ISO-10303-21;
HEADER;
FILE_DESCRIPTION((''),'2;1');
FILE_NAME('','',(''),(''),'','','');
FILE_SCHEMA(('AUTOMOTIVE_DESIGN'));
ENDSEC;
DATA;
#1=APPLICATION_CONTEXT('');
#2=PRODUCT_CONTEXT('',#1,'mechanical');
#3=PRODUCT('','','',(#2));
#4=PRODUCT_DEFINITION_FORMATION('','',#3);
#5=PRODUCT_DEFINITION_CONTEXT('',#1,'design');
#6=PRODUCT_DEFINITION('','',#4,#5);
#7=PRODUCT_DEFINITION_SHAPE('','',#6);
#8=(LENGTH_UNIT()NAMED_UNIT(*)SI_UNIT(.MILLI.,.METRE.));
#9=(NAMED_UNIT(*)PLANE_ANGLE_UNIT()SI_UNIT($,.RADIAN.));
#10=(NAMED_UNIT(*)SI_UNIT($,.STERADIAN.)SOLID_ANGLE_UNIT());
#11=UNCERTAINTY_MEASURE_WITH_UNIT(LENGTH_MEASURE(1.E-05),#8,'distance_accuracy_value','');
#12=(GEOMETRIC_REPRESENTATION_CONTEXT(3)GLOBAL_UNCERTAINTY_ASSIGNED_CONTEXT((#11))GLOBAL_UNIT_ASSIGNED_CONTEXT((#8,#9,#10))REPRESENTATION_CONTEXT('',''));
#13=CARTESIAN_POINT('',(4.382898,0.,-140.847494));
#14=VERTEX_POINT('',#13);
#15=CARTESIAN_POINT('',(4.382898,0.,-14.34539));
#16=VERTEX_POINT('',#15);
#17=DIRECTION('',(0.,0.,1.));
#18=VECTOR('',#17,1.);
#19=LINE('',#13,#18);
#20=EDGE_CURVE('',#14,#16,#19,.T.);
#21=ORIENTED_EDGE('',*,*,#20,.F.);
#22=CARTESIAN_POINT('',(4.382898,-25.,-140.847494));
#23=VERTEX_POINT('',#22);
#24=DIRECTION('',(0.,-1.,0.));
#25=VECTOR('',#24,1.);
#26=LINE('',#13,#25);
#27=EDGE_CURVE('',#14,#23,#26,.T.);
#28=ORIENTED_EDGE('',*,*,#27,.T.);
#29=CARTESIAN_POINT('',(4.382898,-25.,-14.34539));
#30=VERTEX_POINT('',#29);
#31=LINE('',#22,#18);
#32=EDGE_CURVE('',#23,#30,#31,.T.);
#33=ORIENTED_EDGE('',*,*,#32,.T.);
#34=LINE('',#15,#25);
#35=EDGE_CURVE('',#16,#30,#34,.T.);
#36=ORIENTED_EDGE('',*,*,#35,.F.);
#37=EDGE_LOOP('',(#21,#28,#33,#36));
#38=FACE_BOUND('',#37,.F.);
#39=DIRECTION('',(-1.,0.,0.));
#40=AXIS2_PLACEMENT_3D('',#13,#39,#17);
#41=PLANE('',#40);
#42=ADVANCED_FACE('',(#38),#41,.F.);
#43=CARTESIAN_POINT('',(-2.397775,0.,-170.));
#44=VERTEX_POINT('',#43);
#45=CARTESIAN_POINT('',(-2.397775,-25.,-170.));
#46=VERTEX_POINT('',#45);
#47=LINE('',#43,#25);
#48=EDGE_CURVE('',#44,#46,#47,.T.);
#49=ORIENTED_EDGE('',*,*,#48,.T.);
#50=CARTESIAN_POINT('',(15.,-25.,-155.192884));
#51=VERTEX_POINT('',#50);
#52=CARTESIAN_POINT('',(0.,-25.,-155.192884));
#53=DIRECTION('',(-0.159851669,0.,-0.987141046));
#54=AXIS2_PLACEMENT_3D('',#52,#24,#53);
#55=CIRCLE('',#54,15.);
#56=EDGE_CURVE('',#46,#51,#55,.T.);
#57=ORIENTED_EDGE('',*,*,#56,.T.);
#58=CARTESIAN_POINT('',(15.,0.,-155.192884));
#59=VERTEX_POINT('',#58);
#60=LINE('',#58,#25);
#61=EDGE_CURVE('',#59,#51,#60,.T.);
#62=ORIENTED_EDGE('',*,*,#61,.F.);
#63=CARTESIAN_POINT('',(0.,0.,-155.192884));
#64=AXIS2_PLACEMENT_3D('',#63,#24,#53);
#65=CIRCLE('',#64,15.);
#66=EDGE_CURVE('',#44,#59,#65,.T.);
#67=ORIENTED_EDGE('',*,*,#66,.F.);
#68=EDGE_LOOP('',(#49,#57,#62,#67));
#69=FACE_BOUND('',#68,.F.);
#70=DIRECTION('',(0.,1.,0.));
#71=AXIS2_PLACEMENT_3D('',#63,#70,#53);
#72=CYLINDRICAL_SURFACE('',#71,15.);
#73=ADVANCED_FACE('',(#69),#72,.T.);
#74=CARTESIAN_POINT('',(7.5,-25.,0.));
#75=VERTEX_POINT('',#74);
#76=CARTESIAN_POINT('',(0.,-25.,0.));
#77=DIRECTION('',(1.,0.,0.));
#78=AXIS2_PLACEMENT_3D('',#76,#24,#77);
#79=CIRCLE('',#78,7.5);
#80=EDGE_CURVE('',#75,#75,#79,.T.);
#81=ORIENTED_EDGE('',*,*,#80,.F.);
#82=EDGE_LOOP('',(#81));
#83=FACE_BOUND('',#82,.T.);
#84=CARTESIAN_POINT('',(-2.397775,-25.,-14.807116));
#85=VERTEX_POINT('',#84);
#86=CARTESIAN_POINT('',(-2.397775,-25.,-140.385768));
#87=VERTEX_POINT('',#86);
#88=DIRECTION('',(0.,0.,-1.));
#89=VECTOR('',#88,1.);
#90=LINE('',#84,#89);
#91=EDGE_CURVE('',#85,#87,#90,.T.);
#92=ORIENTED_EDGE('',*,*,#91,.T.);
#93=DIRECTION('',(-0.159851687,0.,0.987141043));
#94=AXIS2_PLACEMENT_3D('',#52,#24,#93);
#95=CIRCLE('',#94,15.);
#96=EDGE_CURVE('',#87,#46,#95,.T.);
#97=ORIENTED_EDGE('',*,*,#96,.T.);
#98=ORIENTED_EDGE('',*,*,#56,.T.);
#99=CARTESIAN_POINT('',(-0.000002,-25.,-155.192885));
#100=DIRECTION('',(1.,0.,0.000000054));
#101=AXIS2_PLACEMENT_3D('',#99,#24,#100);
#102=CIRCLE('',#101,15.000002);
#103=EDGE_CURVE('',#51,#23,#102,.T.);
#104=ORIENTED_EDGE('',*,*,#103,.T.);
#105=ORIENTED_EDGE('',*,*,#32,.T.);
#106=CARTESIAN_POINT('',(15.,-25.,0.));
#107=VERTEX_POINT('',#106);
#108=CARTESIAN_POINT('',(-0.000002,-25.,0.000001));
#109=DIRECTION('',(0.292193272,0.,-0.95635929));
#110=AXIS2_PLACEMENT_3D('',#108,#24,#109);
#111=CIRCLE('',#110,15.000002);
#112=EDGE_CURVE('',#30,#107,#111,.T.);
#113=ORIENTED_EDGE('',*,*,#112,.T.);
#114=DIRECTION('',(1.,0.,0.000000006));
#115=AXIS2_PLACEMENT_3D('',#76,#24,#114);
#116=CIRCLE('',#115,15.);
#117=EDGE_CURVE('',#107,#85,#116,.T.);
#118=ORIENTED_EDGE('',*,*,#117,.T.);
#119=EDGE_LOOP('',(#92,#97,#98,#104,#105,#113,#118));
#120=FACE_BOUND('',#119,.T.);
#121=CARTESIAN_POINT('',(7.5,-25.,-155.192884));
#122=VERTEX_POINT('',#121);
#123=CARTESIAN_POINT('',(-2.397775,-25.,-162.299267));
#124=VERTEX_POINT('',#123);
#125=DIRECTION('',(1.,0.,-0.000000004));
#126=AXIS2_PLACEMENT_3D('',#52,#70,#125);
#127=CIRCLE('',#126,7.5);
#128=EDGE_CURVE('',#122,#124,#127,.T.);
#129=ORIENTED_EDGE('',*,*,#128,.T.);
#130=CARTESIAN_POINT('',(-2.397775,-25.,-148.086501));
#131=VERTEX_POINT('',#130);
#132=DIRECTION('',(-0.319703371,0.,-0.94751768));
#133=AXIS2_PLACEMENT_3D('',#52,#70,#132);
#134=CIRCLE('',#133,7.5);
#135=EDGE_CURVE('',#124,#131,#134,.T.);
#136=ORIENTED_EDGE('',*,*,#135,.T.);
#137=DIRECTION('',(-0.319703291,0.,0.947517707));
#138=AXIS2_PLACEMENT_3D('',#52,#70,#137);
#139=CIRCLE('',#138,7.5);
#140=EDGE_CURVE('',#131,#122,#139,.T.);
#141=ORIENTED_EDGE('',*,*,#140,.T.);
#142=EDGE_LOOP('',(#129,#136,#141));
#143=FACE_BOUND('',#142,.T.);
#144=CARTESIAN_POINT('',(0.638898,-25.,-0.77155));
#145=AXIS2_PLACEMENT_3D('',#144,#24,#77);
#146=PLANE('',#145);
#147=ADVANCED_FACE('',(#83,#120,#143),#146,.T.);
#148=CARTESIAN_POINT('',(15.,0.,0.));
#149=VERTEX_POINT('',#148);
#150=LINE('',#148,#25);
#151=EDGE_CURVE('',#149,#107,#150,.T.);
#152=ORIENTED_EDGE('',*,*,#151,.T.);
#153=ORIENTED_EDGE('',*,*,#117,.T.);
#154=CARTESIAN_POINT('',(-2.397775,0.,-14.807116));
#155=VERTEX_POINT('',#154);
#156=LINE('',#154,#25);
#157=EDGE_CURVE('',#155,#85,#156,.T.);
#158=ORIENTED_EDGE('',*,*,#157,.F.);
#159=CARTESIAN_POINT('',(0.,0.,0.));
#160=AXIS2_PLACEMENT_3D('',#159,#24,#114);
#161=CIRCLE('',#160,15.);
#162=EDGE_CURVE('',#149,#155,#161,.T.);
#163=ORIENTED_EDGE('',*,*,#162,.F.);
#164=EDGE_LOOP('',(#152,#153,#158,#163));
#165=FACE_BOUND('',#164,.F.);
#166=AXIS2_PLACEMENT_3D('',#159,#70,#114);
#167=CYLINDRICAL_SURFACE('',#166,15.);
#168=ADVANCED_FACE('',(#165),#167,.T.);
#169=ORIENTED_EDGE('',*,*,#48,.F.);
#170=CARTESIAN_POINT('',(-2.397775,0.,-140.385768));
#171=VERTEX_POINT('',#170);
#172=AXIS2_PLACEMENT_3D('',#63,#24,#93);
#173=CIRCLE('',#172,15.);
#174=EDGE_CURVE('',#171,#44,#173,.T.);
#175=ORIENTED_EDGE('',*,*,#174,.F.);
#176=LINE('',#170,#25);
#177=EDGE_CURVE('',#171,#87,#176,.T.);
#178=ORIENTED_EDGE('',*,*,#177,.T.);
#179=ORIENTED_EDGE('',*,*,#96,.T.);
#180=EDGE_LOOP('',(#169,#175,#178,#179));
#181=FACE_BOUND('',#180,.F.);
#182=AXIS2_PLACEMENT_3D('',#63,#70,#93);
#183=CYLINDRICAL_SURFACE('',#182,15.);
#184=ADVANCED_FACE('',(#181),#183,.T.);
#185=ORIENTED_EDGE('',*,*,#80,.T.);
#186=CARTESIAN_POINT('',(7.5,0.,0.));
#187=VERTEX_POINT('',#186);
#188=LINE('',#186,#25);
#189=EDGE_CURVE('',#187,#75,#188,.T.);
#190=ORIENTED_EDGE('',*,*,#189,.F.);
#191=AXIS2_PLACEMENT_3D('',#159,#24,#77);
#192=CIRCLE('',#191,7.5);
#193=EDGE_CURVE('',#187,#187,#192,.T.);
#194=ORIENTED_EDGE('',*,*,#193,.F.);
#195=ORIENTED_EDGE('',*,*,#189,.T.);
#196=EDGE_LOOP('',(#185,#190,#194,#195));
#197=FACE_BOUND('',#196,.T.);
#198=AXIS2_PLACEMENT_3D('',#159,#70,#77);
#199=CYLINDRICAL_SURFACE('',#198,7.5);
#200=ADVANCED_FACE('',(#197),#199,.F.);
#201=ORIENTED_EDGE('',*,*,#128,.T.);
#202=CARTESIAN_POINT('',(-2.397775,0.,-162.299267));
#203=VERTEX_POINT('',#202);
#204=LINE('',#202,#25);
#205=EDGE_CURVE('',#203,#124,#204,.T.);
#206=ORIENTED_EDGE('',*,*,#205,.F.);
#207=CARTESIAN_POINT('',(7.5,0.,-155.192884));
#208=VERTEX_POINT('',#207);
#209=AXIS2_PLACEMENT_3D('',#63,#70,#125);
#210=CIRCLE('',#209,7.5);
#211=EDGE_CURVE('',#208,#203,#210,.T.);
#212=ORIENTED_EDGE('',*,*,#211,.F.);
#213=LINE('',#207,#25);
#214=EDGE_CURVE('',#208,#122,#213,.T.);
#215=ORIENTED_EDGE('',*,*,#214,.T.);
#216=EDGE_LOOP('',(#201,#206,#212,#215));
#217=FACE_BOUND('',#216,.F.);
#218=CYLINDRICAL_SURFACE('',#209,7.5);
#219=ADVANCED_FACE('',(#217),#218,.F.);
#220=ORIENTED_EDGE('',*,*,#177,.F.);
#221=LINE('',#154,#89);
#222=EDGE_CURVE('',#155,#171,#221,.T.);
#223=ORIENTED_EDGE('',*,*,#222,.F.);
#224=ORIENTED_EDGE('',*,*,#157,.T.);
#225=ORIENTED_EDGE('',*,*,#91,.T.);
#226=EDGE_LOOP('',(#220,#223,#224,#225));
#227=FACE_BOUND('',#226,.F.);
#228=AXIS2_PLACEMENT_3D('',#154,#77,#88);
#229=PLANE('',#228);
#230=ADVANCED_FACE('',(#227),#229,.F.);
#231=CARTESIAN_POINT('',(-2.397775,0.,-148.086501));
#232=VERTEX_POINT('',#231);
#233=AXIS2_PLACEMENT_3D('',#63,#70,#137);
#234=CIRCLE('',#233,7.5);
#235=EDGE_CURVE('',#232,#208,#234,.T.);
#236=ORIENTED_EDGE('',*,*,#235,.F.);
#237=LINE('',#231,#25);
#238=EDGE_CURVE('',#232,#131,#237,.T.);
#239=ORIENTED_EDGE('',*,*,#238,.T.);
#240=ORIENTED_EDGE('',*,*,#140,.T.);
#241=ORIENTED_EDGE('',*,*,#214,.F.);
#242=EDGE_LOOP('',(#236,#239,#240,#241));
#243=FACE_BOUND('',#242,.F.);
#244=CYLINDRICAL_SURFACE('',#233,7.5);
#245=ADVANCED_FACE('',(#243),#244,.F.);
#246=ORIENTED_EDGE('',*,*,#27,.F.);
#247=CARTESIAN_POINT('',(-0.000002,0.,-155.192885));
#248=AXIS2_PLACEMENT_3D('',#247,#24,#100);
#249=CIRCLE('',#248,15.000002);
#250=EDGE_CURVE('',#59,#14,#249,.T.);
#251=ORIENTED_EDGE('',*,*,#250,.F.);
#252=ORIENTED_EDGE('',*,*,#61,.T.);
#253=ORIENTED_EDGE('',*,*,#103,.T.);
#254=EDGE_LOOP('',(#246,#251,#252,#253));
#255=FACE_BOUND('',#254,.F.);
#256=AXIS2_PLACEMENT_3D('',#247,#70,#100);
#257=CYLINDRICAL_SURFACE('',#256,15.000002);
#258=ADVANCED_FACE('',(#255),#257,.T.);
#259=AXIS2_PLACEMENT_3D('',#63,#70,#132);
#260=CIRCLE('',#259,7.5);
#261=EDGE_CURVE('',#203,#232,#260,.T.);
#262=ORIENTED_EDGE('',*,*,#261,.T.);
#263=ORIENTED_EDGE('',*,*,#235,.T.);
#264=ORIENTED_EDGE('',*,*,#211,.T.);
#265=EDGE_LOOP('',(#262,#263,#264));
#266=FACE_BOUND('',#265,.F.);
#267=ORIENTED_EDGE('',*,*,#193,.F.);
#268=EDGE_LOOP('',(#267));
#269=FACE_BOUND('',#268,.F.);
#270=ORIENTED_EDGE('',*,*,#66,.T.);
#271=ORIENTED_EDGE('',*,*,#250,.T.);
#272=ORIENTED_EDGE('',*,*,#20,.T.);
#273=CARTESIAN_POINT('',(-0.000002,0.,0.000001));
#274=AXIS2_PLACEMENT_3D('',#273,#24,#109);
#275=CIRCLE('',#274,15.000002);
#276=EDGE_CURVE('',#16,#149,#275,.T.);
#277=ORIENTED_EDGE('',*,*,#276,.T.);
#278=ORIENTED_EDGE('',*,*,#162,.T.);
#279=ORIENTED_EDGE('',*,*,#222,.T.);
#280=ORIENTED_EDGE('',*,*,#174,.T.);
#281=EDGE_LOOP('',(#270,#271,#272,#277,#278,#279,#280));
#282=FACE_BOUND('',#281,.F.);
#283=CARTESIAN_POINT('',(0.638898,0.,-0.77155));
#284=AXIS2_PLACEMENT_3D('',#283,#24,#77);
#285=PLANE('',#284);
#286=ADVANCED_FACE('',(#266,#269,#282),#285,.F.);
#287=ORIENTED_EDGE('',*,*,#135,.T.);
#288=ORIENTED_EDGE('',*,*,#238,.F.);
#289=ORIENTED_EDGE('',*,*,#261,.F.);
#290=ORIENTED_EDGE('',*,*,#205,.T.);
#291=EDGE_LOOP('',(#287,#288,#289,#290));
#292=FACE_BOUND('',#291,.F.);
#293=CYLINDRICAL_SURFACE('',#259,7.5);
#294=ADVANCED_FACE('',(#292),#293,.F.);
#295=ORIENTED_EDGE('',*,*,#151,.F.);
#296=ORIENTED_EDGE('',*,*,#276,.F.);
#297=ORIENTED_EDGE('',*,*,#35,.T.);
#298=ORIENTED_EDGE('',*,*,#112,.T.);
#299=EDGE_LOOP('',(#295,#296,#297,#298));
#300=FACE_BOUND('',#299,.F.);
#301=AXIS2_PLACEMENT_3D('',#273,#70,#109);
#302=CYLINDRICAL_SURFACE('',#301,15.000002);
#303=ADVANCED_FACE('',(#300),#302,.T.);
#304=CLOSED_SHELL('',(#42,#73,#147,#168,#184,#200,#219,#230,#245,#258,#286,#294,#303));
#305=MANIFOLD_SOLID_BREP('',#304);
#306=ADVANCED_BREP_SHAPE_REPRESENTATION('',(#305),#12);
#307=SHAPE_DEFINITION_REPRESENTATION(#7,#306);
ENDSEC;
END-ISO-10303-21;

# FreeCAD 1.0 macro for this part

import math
import FreeCAD as App
import Part
import Sketcher
from FreeCAD import Vector
Q = App.Units.Quantity

doc = App.newDocument("Part")
body = doc.addObject("PartDesign::Body", "Body")

# Sketch on XZ plane
sketch1 = body.newObject("Sketcher::SketchObject", "Sketch")
sketch1.AttachmentSupport = (doc.getObject("XZ_Plane"), [""])
sketch1.MapMode = "FlatFace"
sketch1.addGeometry([
    Part.ArcOfCircle(Part.Circle(Vector(0, 0, 0), Vector(0, 0, 1), 15), math.radians(-73), math.radians(0)),  # 0
    Part.ArcOfCircle(Part.Circle(Vector(0, 0, 0), Vector(0, 0, 1), 15), math.radians(0), math.radians(261)),  # 1
    Part.LineSegment(Vector(-2, -15, 0), Vector(-2, -140, 0)),  # 2
    Part.ArcOfCircle(Part.Circle(Vector(0, -155, 0), Vector(0, 0, 1), 15), math.radians(99), math.radians(261)),  # 3
    Part.ArcOfCircle(Part.Circle(Vector(0, -155, 0), Vector(0, 0, 1), 15), math.radians(-99), math.radians(0)),  # 4
    Part.ArcOfCircle(Part.Circle(Vector(0, -155, 0), Vector(0, 0, 1), 15), math.radians(0), math.radians(73)),  # 5
    Part.LineSegment(Vector(4, -141, 0), Vector(4, -14, 0)),  # 6
    Part.Circle(Vector(0, 0, 0), Vector(0, 0, 1), 8),  # 7
    Part.ArcOfCircle(Part.Circle(Vector(0, -155, 0), Vector(0, 0, 1), 8), math.radians(0), math.radians(109)),  # 8
    Part.ArcOfCircle(Part.Circle(Vector(0, -155, 0), Vector(0, 0, 1), 8), math.radians(-109), math.radians(0)),  # 9
    Part.ArcOfCircle(Part.Circle(Vector(0, -155, 0), Vector(0, 0, 1), 8), math.radians(109), math.radians(251)),  # 10
], False)
sketch1.addConstraint([
    Sketcher.Constraint("Tangent", 0, 2, 1, 1),
    Sketcher.Constraint("Coincident", 1, 2, 2, 1),
    Sketcher.Constraint("Coincident", 2, 2, 3, 1),
    Sketcher.Constraint("Tangent", 3, 2, 4, 1),
    Sketcher.Constraint("Tangent", 4, 2, 5, 1),
    Sketcher.Constraint("Coincident", 5, 2, 6, 1),
    Sketcher.Constraint("Coincident", 6, 2, 0, 1),
    Sketcher.Constraint("Tangent", 8, 1, 9, 2),
    Sketcher.Constraint("Tangent", 9, 1, 10, 2),
    Sketcher.Constraint("Tangent", 10, 1, 8, 2),
    Sketcher.Constraint("Vertical", 2),
    Sketcher.Constraint("Vertical", 6),
    Sketcher.Constraint("Coincident", 0, 3, -1, 1),
    Sketcher.Constraint("Coincident", 7, 3, -1, 1),
    Sketcher.Constraint("Coincident", 5, 3, 3, 3),
    Sketcher.Constraint("Coincident", 8, 3, 3, 3),
    Sketcher.Constraint("Equal", 0, 1),
    Sketcher.Constraint("Equal", 1, 3),
    Sketcher.Constraint("Equal", 7, 8),
    Sketcher.Constraint("PointOnObject", 3, 3, -2),
    Sketcher.Constraint("PointOnObject", 0, 2, -1),
    Sketcher.Constraint("Horizontal", 10, 3, 4, 2),
    Sketcher.Constraint("Horizontal", 4, 2, 8, 1),
    Sketcher.Constraint("Vertical", 2, 2, 3, 2),
    Sketcher.Constraint("Vertical", 3, 2, 9, 1),
    Sketcher.Constraint("Vertical", 9, 1, 10, 1),
    Sketcher.Constraint("Diameter", 7, Q("15 mm")),
    Sketcher.Constraint("Radius", 0, Q("15.000002 mm")),
    Sketcher.Constraint("DistanceY", 3, 2, -1, 1, Q("170 mm")),
    Sketcher.Constraint("DistanceY", 10, 1, -1, 1, Q("148.086501 mm")),
    Sketcher.Constraint("DistanceX", 9, 3, 5, 2, Q("4.382898 mm")),
])
pad1 = body.newObject("PartDesign::Pad", "Pad")
pad1.Profile = sketch1
pad1.Length = 25

doc.recompute()
